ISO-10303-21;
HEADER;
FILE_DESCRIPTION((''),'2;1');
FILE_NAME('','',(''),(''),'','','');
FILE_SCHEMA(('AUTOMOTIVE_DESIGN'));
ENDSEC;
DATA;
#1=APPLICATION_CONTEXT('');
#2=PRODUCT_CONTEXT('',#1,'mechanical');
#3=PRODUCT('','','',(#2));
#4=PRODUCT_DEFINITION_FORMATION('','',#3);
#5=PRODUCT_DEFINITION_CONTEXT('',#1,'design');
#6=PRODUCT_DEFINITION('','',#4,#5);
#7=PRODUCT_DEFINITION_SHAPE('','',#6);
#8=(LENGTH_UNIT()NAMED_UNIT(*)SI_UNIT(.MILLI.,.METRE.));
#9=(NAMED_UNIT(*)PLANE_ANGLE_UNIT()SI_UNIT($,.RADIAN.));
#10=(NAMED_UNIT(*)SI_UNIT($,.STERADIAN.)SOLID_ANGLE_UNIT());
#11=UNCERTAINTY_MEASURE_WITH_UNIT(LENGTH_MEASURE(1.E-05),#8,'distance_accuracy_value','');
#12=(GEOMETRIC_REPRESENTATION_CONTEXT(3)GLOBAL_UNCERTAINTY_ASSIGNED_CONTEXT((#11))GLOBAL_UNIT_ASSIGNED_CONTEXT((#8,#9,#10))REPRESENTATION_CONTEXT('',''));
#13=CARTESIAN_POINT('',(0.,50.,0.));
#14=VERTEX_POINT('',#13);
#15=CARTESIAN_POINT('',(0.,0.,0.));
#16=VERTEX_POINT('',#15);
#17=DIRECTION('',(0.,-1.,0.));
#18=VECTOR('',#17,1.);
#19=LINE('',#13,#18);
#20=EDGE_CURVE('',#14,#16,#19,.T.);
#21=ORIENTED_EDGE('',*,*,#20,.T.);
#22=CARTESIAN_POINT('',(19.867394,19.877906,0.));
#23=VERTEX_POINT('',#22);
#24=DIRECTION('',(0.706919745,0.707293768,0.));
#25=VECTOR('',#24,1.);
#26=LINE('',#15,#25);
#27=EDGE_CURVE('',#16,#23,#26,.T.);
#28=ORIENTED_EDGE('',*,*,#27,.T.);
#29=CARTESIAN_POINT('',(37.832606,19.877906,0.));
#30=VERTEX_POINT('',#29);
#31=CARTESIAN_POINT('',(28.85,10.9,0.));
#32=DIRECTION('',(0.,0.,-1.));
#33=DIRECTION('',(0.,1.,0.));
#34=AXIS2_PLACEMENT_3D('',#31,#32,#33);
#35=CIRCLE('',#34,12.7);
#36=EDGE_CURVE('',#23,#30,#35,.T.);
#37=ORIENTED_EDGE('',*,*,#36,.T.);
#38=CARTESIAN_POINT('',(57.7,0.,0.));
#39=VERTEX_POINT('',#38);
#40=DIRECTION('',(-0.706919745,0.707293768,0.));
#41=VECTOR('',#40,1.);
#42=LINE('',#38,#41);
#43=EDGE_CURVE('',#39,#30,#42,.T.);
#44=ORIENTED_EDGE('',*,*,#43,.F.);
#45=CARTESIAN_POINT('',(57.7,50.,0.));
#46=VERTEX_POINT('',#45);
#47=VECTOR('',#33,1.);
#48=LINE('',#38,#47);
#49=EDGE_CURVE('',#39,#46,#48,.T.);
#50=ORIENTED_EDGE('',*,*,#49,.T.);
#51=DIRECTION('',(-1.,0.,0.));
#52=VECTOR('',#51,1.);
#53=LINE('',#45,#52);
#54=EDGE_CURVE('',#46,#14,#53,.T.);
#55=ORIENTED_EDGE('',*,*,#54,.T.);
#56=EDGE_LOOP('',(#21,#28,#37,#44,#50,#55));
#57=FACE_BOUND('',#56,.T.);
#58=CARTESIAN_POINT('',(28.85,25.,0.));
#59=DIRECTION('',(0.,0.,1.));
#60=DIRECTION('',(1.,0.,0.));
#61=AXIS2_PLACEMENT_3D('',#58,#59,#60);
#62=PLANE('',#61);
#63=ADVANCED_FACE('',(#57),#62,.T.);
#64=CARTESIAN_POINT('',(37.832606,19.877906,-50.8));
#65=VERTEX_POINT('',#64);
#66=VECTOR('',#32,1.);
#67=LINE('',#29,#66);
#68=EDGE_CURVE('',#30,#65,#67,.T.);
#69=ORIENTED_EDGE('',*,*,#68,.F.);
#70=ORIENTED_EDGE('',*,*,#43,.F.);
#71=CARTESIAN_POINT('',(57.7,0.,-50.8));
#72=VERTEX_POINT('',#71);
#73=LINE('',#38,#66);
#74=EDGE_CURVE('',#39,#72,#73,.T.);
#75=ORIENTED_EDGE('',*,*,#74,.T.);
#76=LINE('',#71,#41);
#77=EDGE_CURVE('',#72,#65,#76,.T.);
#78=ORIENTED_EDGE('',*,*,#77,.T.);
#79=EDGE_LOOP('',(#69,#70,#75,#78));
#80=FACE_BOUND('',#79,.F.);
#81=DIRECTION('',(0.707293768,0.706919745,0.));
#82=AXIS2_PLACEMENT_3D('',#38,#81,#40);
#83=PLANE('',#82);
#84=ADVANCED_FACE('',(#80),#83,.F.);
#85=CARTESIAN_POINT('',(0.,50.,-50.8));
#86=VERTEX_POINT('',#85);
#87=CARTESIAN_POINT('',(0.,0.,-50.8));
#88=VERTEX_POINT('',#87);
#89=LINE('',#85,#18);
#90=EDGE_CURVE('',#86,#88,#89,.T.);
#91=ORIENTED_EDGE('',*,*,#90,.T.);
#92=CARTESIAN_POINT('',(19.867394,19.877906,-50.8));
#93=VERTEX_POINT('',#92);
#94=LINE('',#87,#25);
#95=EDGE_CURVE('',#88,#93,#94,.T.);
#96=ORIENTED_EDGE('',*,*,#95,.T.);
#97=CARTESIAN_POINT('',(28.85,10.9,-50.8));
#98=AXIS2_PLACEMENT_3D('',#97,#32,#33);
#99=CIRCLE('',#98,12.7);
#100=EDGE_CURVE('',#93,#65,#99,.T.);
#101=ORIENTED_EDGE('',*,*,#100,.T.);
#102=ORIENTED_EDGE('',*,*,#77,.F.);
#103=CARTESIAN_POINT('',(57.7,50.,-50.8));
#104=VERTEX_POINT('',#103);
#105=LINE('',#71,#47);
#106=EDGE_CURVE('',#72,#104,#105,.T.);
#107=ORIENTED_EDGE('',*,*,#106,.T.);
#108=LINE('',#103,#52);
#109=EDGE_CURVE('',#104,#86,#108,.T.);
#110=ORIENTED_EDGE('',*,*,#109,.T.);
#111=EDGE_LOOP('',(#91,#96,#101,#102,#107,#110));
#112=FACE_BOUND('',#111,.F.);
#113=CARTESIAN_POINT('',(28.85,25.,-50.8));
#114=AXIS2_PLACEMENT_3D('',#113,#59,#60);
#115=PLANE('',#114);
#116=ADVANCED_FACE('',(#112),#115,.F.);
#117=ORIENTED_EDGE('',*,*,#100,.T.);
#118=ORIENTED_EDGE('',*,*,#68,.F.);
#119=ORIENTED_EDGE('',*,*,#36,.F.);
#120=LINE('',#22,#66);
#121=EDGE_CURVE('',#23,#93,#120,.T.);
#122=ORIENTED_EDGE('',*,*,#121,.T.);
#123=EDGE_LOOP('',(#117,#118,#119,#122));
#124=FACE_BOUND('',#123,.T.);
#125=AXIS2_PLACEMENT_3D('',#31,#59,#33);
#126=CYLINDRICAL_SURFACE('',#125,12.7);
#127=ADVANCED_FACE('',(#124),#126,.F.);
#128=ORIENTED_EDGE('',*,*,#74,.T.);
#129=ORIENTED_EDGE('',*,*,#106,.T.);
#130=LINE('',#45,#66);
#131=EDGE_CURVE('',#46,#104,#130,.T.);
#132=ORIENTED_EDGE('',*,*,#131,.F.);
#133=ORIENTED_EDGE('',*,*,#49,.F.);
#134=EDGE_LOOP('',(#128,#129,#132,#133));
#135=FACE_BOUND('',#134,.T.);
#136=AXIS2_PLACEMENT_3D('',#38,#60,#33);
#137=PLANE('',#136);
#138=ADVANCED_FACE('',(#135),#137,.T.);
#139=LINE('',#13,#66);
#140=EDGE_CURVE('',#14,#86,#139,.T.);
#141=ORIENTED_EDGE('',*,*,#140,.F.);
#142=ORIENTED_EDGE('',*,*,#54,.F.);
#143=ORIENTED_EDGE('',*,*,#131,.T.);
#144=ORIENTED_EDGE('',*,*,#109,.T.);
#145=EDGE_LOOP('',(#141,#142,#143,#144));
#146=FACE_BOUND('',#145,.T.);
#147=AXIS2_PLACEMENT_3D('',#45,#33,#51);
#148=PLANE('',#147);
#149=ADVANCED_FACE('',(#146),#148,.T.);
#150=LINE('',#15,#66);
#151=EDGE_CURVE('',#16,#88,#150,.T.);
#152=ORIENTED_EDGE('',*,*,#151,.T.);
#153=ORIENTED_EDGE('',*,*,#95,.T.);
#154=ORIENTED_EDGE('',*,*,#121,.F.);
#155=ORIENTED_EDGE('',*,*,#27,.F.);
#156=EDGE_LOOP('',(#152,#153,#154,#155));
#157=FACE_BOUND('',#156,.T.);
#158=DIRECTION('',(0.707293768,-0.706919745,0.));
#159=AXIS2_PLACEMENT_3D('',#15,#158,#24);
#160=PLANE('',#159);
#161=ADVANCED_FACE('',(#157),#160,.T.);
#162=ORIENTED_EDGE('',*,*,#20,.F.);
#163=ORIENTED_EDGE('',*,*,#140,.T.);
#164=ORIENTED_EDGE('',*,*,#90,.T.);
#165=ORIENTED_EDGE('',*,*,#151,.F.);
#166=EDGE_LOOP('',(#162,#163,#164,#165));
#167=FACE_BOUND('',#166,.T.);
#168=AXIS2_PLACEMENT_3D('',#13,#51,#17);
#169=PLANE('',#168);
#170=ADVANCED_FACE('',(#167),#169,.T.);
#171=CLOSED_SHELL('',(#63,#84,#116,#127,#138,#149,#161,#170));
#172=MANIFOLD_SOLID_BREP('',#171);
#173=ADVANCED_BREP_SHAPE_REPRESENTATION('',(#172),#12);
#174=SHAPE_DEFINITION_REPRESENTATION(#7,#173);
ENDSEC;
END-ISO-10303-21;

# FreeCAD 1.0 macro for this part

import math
import FreeCAD as App
import Part
import Sketcher
from FreeCAD import Vector
Q = App.Units.Quantity

doc = App.newDocument("Part")
body = doc.addObject("PartDesign::Body", "Body")

# Sketch on XY plane
sketch1 = doc.addObject("Sketcher::SketchObject", "Sketch")
body.addObject(sketch1)
sketch1.AttachmentSupport = (doc.XY_Plane, [""])
sketch1.MapMode = "FlatFace"
sketch1.addGeometry([
    Part.LineSegment(Vector(0, 50, 0), Vector(0, 0, 0)),
    Part.LineSegment(Vector(0, 0, 0), Vector(57.7, 0, 0)),
    Part.LineSegment(Vector(57.7, 0, 0), Vector(57.7, 50, 0)),
    Part.LineSegment(Vector(57.7, 50, 0), Vector(0, 50, 0)),
], False)
sketch1.addConstraint([
    Sketcher.Constraint("Coincident", 0, 2, 1, 1),
    Sketcher.Constraint("Coincident", 1, 2, 2, 1),
    Sketcher.Constraint("Coincident", 2, 2, 3, 1),
    Sketcher.Constraint("Coincident", 3, 2, 0, 1),
    Sketcher.Constraint("Vertical", 0),
    Sketcher.Constraint("Horizontal", 1),
    Sketcher.Constraint("Vertical", 2),
    Sketcher.Constraint("Horizontal", 3),
    Sketcher.Constraint("Coincident", 0, 2, -1, 1),
    Sketcher.Constraint("DistanceY", 0, 2, 0, 1, Q("1.9685 in")),
    Sketcher.Constraint("DistanceX", 1, 1, 1, 2, 57.7),
])
pad1 = doc.addObject("PartDesign::Pad", "Pad")
body.addObject(pad1)
pad1.Profile = sketch1
pad1.Length = Q("2 in")
pad1.Reversed = True

# Sketch on XY plane
sketch2 = doc.addObject("Sketcher::SketchObject", "Sketch001")
body.addObject(sketch2)
sketch2.AttachmentSupport = (doc.XY_Plane, [""])
sketch2.MapMode = "FlatFace"
sketch2.addGeometry([
    Part.LineSegment(Vector(19.8674, 19.8779, 0), Vector(0, 0, 0)),
    Part.LineSegment(Vector(0, 0, 0), Vector(57.7, 0, 0)),
    Part.LineSegment(Vector(57.7, 0, 0), Vector(37.8326, 19.8779, 0)),
    Part.ArcOfCircle(Part.Circle(Vector(28.85, 10.9, 0), Vector(0, 0, 1), 12.699992), math.radians(44.985007), math.radians(135.014993)),
], False)
sketch2.addConstraint([
    Sketcher.Constraint("Coincident", 0, 2, 1, 1),
    Sketcher.Constraint("Coincident", 1, 2, 2, 1),
    Sketcher.Constraint("Tangent", 2, 2, 3, 1),
    Sketcher.Constraint("Tangent", 3, 2, 0, 1),
    Sketcher.Constraint("Horizontal", 1),
    Sketcher.Constraint("Coincident", 0, 2, -1, 1),
    Sketcher.Constraint("Horizontal", 2, 2, 3, 2),
    Sketcher.Constraint("Radius", 3, Q("0.5 in")),
    Sketcher.Constraint("DistanceX", 1, 1, 1, 2, 57.7),
    Sketcher.Constraint("DistanceY", -1, 1, 2, 2, Q("0.7826 in")),
])
pocket1 = doc.addObject("PartDesign::Pocket", "Pocket")
body.addObject(pocket1)
pocket1.Profile = sketch2
pocket1.Length = Q("2 in")

doc.recompute()
